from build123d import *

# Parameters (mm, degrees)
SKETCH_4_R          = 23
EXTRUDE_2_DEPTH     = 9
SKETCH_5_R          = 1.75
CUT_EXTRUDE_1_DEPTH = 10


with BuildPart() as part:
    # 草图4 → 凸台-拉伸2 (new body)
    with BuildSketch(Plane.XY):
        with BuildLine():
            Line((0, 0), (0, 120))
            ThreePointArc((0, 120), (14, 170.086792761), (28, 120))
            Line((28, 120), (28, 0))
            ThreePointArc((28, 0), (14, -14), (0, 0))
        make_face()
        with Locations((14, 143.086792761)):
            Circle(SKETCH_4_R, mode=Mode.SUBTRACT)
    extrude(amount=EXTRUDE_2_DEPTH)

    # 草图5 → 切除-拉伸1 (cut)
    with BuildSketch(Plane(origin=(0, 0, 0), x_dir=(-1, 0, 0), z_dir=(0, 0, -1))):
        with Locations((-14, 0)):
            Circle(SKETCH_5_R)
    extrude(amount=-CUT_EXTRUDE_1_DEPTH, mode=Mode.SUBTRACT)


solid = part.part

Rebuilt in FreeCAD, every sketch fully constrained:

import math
import FreeCAD as App
import Part
import Sketcher

doc = App.newDocument("Part")
body = doc.addObject("PartDesign::Body", "Body")

sketch1 = doc.addObject("Sketcher::SketchObject", "Sketch")
body.addObject(sketch1)
sketch1.AttachmentSupport = (doc.XY_Plane, [""])
sketch1.MapMode = "FlatFace"
sketch1.addGeometry([
    Part.LineSegment(App.Vector(0, 120, 0), App.Vector(0, 0, 0)),
    Part.ArcOfCircle(Part.Circle(App.Vector(14, 0, 0), App.Vector(0, 0, 1), 14), math.radians(180), math.radians(360)),
    Part.LineSegment(App.Vector(28, 0, 0), App.Vector(28, 120, 0)),
    Part.ArcOfCircle(Part.Circle(App.Vector(14, 143, 0), App.Vector(0, 0, 1), 27), math.radians(-59), math.radians(239)),
    Part.Circle(App.Vector(14, 143, 0), App.Vector(0, 0, 1), 23),
], False)
sketch1.addConstraint([
    Sketcher.Constraint("Tangent", 0, 2, 1, 1),
    Sketcher.Constraint("Tangent", 1, 2, 2, 1),
    Sketcher.Constraint("Coincident", 2, 2, 3, 1),
    Sketcher.Constraint("Coincident", 3, 2, 0, 1),
    Sketcher.Constraint("Vertical", 0),
    Sketcher.Constraint("Vertical", 2),
    Sketcher.Constraint("Coincident", 0, 2, -1, 1),
    Sketcher.Constraint("Coincident", 4, 3, 3, 3),
    Sketcher.Constraint("Horizontal", 2, 2, 3, 2),
    Sketcher.Constraint("Diameter", 4, 46.0),
    Sketcher.Constraint("Radius", 1, 14.0),
    Sketcher.Constraint("Radius", 3, 27.0),
    Sketcher.Constraint("DistanceY", 0, 2, 0, 1, 120.0),
])
pad1 = doc.addObject("PartDesign::Pad", "Pad")
body.addObject(pad1)
pad1.Profile = sketch1
pad1.Length = 9

sketch2 = doc.addObject("Sketcher::SketchObject", "Sketch001")
body.addObject(sketch2)
sketch2.AttachmentSupport = (doc.XY_Plane, [""])
sketch2.MapMode = "FlatFace"
sketch2.addGeometry(Part.Circle(App.Vector(14, 0, 0), App.Vector(0, 0, 1), 1.8), False)
sketch2.addConstraint([
    Sketcher.Constraint("PointOnObject", 0, 3, -1),
    Sketcher.Constraint("Diameter", 0, 3.5),
    Sketcher.Constraint("DistanceX", -1, 1, 0, 3, 14.0),
])
pocket1 = doc.addObject("PartDesign::Pocket", "Pocket")
body.addObject(pocket1)
pocket1.Profile = sketch2
pocket1.Length = 10
pocket1.Reversed = True

doc.recompute()
